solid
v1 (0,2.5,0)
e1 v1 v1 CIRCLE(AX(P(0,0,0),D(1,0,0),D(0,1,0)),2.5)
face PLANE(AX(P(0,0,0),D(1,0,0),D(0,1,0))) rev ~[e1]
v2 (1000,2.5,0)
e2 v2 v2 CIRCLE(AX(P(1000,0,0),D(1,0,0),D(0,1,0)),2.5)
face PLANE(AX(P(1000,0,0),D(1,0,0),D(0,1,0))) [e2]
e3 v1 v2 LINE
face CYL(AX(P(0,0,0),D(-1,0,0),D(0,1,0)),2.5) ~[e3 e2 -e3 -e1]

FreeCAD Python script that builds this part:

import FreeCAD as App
import Part
import Sketcher
from FreeCAD import Vector

doc = App.newDocument("Part")
body = doc.addObject("PartDesign::Body", "Body")

# Sketch on YZ plane
sketch1 = body.newObject("Sketcher::SketchObject", "Sketch")
sketch1.AttachmentSupport = (doc.getObject("YZ_Plane"), [""])
sketch1.MapMode = "FlatFace"
sketch1.addGeometry(Part.Circle(Vector(0, 0, 0), Vector(0, 0, 1), 2.5), False)
sketch1.addConstraint([
    Sketcher.Constraint("Coincident", 0, 3, -1, 1),
    Sketcher.Constraint("Diameter", 0, 5.0),
])
pad1 = body.newObject("PartDesign::Pad", "Pad")
pad1.Profile = sketch1
pad1.Length = 1000

doc.recompute()
